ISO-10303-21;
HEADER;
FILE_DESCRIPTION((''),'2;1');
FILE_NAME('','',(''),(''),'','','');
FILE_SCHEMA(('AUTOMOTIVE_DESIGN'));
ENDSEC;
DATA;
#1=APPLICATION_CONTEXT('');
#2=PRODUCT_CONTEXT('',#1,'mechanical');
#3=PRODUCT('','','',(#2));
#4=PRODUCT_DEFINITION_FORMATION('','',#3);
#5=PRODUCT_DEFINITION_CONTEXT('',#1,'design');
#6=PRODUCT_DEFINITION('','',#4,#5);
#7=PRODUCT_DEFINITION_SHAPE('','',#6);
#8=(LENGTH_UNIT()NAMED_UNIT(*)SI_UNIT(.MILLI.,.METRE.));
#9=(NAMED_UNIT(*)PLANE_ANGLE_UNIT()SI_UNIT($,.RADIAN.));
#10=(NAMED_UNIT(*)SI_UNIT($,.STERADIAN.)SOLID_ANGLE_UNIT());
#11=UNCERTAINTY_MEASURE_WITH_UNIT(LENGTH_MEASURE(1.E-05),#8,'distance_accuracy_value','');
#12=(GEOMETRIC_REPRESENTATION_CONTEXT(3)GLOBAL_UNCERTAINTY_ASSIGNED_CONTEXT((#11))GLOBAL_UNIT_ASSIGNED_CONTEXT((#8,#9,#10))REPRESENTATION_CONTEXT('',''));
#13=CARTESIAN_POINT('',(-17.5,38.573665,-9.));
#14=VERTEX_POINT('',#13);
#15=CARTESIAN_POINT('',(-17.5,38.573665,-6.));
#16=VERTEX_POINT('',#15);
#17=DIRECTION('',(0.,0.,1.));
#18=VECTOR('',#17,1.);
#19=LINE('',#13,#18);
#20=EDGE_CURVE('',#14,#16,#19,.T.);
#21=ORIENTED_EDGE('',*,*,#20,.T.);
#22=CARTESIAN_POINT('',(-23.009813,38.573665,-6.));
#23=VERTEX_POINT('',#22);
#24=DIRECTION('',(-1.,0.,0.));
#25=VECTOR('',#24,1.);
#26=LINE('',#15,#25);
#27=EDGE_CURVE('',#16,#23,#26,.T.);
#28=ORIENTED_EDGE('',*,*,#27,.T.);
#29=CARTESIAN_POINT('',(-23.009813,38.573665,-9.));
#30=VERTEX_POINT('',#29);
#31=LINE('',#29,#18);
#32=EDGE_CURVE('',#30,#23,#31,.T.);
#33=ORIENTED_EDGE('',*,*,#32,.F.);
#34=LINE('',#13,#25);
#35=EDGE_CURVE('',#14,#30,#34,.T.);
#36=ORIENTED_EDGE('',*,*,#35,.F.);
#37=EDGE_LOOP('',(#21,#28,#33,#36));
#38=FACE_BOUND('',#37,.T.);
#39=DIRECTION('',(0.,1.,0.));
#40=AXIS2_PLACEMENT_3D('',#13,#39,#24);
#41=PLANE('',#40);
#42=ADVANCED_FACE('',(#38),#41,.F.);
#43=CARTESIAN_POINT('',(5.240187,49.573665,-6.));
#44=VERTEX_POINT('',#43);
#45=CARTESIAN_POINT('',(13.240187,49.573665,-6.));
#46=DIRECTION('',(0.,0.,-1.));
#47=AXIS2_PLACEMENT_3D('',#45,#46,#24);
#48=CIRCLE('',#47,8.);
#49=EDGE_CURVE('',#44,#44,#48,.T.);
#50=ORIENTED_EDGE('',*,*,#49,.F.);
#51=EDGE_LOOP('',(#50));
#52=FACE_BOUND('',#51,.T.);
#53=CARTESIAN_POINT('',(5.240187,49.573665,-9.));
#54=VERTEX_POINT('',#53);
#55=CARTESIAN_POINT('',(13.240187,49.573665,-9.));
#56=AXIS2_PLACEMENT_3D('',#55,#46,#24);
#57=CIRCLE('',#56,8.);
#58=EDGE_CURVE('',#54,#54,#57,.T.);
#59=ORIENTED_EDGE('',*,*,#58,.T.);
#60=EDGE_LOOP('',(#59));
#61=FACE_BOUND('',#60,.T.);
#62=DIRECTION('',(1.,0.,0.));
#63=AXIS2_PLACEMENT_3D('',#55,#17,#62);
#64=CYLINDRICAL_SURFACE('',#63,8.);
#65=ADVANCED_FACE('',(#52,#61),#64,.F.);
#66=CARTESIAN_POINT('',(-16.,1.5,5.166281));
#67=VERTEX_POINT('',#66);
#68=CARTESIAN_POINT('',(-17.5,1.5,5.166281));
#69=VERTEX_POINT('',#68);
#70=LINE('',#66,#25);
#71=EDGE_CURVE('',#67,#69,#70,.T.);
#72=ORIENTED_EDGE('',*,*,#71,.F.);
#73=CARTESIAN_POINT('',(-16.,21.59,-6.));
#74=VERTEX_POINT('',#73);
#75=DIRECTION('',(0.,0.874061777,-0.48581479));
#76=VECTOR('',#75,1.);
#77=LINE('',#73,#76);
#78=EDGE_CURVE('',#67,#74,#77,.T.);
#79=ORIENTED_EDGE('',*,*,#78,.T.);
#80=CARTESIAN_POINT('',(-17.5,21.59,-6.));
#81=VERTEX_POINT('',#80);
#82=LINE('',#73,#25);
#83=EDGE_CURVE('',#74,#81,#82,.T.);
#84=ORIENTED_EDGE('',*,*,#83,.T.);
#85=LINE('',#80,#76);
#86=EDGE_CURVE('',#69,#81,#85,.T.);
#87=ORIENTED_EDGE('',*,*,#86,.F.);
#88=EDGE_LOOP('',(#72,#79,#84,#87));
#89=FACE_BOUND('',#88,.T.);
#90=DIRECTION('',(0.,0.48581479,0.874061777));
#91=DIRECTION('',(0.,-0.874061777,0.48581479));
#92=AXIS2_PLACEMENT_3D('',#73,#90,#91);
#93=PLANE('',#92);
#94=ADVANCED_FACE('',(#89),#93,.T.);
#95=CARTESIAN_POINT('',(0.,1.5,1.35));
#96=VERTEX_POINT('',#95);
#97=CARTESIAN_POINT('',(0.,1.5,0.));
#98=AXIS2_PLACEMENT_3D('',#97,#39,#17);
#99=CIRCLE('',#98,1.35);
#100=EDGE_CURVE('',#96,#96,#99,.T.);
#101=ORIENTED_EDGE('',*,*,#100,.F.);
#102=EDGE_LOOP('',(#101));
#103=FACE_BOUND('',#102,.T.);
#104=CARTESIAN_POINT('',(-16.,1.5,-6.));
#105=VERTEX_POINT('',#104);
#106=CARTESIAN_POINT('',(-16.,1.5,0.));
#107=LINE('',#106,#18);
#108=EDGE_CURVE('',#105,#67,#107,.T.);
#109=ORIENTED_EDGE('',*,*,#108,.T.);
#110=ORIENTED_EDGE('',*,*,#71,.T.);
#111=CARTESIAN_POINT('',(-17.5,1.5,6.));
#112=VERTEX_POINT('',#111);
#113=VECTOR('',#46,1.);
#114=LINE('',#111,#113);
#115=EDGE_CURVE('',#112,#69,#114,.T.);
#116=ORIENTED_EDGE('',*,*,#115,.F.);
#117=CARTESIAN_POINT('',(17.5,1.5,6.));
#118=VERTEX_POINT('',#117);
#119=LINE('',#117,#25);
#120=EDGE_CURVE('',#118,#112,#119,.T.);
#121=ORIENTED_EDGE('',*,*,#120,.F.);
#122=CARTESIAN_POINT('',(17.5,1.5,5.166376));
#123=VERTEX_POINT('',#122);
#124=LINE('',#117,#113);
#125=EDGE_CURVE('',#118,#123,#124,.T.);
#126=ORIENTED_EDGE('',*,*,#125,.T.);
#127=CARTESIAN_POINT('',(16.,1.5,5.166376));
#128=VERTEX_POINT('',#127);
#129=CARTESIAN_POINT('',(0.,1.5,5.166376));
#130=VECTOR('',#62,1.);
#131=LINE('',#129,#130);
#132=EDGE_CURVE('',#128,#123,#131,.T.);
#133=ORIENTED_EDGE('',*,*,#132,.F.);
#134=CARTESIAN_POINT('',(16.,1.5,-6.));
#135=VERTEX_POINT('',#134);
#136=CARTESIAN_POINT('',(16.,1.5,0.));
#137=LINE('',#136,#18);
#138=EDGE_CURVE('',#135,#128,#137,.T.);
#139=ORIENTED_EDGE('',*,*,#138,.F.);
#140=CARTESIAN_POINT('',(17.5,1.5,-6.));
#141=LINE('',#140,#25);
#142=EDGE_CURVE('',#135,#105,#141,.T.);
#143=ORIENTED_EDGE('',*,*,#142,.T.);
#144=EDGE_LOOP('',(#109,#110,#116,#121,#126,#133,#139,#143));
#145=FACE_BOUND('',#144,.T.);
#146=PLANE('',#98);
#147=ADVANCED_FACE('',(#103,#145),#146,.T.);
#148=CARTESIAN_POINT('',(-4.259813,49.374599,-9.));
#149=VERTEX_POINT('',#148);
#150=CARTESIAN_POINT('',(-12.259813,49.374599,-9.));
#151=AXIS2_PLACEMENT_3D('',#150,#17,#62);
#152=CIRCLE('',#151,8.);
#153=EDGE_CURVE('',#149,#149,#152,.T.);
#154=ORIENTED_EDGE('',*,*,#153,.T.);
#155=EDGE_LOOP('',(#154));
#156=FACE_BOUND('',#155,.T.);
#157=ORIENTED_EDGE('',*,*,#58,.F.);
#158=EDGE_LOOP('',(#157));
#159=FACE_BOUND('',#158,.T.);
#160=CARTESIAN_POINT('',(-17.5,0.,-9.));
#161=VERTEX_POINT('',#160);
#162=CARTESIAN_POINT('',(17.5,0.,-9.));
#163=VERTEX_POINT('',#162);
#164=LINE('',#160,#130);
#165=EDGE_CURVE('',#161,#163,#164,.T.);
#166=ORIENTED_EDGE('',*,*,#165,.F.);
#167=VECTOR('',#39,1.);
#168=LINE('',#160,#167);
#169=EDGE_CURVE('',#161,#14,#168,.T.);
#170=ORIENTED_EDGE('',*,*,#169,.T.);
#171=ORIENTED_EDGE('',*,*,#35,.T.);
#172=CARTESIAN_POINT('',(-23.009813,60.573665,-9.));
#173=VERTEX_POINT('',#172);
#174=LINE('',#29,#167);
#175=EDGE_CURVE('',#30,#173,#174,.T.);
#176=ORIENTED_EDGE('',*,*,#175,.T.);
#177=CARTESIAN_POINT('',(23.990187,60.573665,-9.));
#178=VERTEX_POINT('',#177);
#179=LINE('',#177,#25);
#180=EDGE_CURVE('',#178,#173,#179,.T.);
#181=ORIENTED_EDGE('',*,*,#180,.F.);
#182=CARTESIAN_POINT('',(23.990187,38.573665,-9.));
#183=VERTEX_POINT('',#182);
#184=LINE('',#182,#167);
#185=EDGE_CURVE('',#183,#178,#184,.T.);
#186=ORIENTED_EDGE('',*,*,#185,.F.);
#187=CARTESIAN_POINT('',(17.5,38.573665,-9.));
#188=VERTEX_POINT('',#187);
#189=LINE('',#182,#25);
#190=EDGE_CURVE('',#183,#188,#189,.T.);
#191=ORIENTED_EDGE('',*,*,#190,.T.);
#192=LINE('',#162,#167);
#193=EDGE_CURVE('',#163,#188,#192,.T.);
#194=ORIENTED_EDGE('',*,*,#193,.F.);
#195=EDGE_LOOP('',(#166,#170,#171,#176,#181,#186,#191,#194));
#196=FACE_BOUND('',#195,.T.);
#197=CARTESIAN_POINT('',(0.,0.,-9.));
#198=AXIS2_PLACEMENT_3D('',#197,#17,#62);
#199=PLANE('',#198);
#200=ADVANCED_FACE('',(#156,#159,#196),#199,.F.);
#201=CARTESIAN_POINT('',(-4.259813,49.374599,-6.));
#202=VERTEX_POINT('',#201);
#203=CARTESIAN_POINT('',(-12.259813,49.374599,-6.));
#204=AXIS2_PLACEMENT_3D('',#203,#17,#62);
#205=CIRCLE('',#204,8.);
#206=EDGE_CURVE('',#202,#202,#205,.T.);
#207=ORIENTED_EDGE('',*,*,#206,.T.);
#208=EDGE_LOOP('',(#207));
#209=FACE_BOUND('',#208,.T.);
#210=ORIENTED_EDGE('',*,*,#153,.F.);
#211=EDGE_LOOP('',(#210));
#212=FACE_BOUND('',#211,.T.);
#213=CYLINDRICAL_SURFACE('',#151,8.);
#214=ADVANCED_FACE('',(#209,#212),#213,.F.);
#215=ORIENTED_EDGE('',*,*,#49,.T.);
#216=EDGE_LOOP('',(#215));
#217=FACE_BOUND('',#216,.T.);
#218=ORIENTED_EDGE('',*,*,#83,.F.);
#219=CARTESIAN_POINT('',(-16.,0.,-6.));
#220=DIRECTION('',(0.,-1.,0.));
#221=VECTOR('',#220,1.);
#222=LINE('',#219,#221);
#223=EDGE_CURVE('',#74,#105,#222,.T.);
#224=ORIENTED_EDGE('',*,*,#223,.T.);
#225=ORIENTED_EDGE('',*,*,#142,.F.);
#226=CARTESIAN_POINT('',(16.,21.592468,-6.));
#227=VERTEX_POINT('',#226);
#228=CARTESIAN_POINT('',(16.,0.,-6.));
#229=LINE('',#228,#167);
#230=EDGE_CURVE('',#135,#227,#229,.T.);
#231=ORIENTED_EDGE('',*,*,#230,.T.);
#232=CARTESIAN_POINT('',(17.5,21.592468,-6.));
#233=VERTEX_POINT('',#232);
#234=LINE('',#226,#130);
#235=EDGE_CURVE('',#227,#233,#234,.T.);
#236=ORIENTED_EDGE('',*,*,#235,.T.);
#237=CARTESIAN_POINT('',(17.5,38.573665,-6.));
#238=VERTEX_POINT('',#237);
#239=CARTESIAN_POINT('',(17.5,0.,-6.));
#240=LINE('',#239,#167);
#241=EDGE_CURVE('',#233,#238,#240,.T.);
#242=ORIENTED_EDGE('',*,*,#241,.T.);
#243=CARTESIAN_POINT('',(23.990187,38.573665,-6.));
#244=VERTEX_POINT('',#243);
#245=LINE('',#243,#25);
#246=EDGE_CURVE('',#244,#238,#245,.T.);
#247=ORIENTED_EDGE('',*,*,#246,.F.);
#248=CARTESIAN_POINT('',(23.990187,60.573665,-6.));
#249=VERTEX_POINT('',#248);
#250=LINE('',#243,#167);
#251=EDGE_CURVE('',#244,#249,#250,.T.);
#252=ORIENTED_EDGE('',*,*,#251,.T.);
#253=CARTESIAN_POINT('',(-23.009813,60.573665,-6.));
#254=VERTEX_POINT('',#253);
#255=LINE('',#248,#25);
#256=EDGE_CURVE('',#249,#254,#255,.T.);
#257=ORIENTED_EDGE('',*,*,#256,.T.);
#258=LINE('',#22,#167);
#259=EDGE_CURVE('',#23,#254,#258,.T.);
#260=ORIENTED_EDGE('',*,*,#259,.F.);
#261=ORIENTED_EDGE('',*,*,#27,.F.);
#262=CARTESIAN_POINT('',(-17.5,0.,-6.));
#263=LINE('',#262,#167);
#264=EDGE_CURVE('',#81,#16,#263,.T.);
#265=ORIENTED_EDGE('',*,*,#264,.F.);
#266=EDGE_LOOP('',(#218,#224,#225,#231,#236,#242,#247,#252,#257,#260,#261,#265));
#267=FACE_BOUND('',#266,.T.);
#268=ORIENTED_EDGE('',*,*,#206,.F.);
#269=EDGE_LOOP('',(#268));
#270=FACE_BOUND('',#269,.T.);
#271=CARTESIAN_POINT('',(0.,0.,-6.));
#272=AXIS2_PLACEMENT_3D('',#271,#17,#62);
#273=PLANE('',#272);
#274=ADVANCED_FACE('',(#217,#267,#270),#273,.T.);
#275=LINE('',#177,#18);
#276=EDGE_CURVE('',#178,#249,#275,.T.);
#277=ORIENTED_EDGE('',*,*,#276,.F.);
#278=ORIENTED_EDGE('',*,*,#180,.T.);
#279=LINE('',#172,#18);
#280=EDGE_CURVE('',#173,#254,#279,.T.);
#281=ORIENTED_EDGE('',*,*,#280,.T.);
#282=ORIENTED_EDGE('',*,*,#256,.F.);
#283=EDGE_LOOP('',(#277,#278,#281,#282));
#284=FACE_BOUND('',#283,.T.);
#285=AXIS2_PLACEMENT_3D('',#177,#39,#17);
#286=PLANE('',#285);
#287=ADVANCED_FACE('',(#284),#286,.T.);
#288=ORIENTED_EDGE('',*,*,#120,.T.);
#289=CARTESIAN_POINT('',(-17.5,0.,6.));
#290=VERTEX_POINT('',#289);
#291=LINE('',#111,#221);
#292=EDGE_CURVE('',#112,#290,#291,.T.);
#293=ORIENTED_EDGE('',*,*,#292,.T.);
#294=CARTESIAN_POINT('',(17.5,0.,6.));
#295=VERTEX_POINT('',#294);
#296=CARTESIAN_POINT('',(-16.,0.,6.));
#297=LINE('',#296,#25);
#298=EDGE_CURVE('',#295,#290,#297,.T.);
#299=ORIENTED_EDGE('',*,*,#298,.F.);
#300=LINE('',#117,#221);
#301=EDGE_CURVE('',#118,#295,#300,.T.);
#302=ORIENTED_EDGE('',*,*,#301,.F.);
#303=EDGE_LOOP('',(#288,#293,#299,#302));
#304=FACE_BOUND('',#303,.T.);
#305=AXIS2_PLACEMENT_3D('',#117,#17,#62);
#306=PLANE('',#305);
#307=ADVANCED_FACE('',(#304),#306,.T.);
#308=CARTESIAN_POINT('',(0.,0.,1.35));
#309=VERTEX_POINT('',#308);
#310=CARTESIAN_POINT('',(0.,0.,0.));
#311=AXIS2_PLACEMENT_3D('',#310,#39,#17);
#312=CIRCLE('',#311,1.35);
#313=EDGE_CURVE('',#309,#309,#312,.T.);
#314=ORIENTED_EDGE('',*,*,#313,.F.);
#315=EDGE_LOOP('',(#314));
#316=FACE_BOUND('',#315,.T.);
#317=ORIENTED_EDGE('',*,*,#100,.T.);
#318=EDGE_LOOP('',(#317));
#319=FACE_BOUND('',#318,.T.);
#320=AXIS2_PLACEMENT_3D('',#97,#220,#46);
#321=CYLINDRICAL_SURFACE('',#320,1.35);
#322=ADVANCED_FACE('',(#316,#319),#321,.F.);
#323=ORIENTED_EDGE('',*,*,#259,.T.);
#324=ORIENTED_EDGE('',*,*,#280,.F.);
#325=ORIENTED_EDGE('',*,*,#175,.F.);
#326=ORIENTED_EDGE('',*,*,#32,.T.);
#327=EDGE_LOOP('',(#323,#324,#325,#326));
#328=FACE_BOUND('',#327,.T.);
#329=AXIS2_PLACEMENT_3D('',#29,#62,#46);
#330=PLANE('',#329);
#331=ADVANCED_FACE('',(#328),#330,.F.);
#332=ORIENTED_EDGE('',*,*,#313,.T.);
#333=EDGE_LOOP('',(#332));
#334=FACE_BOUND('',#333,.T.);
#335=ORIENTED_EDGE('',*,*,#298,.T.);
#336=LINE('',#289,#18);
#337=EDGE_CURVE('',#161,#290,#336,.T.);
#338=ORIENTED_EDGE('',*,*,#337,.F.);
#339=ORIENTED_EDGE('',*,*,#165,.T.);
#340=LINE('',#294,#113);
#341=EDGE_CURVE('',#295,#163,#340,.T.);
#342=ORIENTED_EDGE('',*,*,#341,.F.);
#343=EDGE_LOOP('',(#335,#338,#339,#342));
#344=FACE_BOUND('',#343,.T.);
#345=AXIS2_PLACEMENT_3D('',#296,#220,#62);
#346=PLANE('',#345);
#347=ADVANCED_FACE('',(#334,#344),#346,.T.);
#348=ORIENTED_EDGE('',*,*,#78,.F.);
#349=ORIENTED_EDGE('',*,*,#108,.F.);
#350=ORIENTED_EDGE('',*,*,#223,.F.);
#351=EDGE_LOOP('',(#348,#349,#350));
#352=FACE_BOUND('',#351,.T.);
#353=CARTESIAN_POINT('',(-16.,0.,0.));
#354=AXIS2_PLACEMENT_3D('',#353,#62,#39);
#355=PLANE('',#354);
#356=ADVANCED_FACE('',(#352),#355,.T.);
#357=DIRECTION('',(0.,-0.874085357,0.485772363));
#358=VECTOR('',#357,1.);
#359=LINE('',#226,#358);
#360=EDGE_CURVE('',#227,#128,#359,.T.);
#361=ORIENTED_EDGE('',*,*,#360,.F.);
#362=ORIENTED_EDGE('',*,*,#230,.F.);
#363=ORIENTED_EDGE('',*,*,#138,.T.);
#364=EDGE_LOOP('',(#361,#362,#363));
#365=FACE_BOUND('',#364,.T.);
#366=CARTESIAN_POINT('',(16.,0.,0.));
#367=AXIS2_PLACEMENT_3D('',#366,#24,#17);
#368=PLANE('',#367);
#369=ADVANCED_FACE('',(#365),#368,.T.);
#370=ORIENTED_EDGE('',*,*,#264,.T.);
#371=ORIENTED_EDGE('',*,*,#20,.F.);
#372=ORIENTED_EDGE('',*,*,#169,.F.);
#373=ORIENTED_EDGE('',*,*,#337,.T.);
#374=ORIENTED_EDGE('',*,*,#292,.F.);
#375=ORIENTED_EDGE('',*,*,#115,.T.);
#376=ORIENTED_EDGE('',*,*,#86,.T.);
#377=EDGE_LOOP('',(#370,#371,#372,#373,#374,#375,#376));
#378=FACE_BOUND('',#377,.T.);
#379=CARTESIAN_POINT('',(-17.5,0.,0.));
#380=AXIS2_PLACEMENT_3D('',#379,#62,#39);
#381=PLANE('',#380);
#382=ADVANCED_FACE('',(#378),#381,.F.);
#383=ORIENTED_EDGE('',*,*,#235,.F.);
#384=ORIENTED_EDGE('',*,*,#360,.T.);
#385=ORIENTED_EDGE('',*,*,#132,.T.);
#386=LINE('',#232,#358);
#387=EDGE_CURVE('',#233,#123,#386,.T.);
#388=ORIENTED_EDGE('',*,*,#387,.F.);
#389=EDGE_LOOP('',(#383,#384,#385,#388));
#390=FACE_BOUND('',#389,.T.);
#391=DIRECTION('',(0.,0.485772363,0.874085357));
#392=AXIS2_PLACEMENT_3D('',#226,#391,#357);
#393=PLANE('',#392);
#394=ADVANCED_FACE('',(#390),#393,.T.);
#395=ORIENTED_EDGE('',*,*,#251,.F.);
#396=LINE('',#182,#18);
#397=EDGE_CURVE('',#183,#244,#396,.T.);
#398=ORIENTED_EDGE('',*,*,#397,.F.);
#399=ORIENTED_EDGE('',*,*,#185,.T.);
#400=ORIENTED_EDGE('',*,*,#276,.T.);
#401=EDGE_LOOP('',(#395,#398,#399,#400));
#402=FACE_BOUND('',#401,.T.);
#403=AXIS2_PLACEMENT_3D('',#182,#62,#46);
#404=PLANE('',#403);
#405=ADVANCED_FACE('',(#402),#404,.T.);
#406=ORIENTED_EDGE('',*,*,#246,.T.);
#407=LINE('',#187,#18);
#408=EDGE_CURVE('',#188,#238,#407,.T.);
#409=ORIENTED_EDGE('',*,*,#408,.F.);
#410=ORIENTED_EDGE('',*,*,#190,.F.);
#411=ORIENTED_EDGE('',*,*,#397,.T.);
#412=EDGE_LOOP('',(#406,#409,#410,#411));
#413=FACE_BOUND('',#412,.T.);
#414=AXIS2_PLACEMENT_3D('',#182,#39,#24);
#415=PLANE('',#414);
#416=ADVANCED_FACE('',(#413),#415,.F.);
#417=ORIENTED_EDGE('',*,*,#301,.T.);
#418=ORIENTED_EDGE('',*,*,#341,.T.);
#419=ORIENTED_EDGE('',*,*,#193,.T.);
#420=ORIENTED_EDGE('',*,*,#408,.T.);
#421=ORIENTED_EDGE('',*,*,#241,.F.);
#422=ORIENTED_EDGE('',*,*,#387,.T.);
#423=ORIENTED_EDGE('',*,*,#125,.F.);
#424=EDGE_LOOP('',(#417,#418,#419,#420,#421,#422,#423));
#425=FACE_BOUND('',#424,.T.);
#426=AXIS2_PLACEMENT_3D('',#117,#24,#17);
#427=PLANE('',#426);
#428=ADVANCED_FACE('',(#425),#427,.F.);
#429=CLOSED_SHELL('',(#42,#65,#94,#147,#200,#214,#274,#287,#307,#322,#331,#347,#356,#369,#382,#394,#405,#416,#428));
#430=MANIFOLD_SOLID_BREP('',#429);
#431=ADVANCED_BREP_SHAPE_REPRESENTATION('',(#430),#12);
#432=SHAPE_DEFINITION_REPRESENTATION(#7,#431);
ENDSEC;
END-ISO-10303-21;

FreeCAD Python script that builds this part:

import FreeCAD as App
import Part
import Sketcher
from FreeCAD import Vector

doc = App.newDocument("Part")
body = doc.addObject("PartDesign::Body", "Body")

sketch1 = body.newObject("Sketcher::SketchObject", "Sketch")
sketch1.AttachmentSupport = (doc.getObject("YZ_Plane"), [""])
sketch1.MapMode = "FlatFace"
sketch1.AttachmentOffset = App.Placement(Vector(0, 0, -17.5), App.Rotation())
sketch1.addGeometry([
    Part.LineSegment(Vector(0, 6, 0), Vector(22, -6, 0)),
    Part.LineSegment(Vector(22, -6, 0), Vector(0, -6, 0)),
    Part.LineSegment(Vector(0, -6, 0), Vector(0, 6, 0)),
], False)
sketch1.addConstraint([
    Sketcher.Constraint("Coincident", 0, 2, 1, 1),
    Sketcher.Constraint("Coincident", 1, 2, 2, 1),
    Sketcher.Constraint("Coincident", 2, 2, 0, 1),
    Sketcher.Constraint("Horizontal", 1),
    Sketcher.Constraint("Vertical", 2),
    Sketcher.Constraint("Symmetric", 1, 2, 2, 2, -1, 1),
    Sketcher.Constraint("DistanceY", 2, 1, 2, 2, 12.0),
    Sketcher.Constraint("DistanceX", 1, 2, 1, 1, 21.59),
])
pad1 = body.newObject("PartDesign::Pad", "Pad")
pad1.Profile = sketch1
pad1.Length = 1.5
body2 = doc.addObject("PartDesign::Body", "Body001")

sketch2 = body2.newObject("Sketcher::SketchObject", "Sketch001")
sketch2.AttachmentSupport = (doc.getObject("YZ_Plane001"), [""])
sketch2.MapMode = "FlatFace"
sketch2.AttachmentOffset = App.Placement(Vector(0, 0, 17.5), App.Rotation())
sketch2.addGeometry([
    Part.LineSegment(Vector(22, -6, 0), Vector(0, 6, 0)),
    Part.LineSegment(Vector(0, 6, 0), Vector(0, -6, 0)),
    Part.LineSegment(Vector(0, -6, 0), Vector(22, -6, 0)),
], False)
sketch2.addConstraint([
    Sketcher.Constraint("Coincident", 0, 2, 1, 1),
    Sketcher.Constraint("Coincident", 1, 2, 2, 1),
    Sketcher.Constraint("Coincident", 2, 2, 0, 1),
    Sketcher.Constraint("Vertical", 1),
    Sketcher.Constraint("Horizontal", 2),
    Sketcher.Constraint("Symmetric", 0, 2, 1, 2, -1, 1),
    Sketcher.Constraint("DistanceY", 1, 2, 1, 1, 12.0),
    Sketcher.Constraint("DistanceX", 2, 1, 2, 2, 21.592468),
])
pad2 = body2.newObject("PartDesign::Pad", "Pad001")
pad2.Profile = sketch2
pad2.Length = 1.5
pad2.Reversed = True
body.AllowCompound = True
doc.recompute()

boolean = body.newObject("PartDesign::Boolean", "Boolean")
boolean.Type = "Fuse"
boolean.addObjects([body2])

sketch3 = body.newObject("Sketcher::SketchObject", "Sketch002")
sketch3.AttachmentSupport = (doc.getObject("XZ_Plane"), [""])
sketch3.MapMode = "FlatFace"
sketch3.addGeometry([
    Part.LineSegment(Vector(-17.5, -6, 0), Vector(-17.5, 6, 0)),
    Part.LineSegment(Vector(-17.5, 6, 0), Vector(17.5, 6, 0)),
    Part.LineSegment(Vector(17.5, 6, 0), Vector(17.5, -6, 0)),
    Part.LineSegment(Vector(17.5, -6, 0), Vector(-17.5, -6, 0)),
    Part.Circle(Vector(0, 0, 0), Vector(0, 0, 1), 1.4),
], False)
sketch3.addConstraint([
    Sketcher.Constraint("Coincident", 0, 2, 1, 1),
    Sketcher.Constraint("Coincident", 1, 2, 2, 1),
    Sketcher.Constraint("Coincident", 2, 2, 3, 1),
    Sketcher.Constraint("Coincident", 3, 2, 0, 1),
    Sketcher.Constraint("Vertical", 0),
    Sketcher.Constraint("Horizontal", 1),
    Sketcher.Constraint("Vertical", 2),
    Sketcher.Constraint("Horizontal", 3),
    Sketcher.Constraint("Coincident", 4, 3, -1, 1),
    Sketcher.Constraint("Symmetric", 0, 2, 2, 2, -1, 1),
    Sketcher.Constraint("Diameter", 4, 2.7),
    Sketcher.Constraint("DistanceX", 1, 1, 1, 2, 35.0),
    Sketcher.Constraint("DistanceY", 0, 1, 0, 2, 12.0),
])
pad3 = body.newObject("PartDesign::Pad", "Pad002")
pad3.Profile = sketch3
pad3.Length = 1.5
pad3.Reversed = True

sketch4 = body.newObject("Sketcher::SketchObject", "Sketch003")
sketch4.AttachmentSupport = (doc.getObject("XY_Plane"), [""])
sketch4.MapMode = "FlatFace"
sketch4.AttachmentOffset = App.Placement(Vector(0, 0, -6), App.Rotation())
sketch4.addGeometry([
    Part.LineSegment(Vector(18, 0, 0), Vector(-18, 0, 0)),
    Part.LineSegment(Vector(-18, 0, 0), Vector(-18, 39, 0)),
    Part.LineSegment(Vector(-18, 39, 0), Vector(-23, 39, 0)),
    Part.LineSegment(Vector(-23, 39, 0), Vector(-23, 61, 0)),
    Part.LineSegment(Vector(-23, 61, 0), Vector(24, 61, 0)),
    Part.LineSegment(Vector(24, 61, 0), Vector(24, 39, 0)),
    Part.LineSegment(Vector(24, 39, 0), Vector(18, 39, 0)),
    Part.LineSegment(Vector(18, 39, 0), Vector(18, 0, 0)),
    Part.Circle(Vector(-12, 49, 0), Vector(0, 0, 1), 8),
    Part.Circle(Vector(13, 50, 0), Vector(0, 0, 1), 8),
], False)
sketch4.addConstraint([
    Sketcher.Constraint("Coincident", 0, 2, 1, 1),
    Sketcher.Constraint("Coincident", 1, 2, 2, 1),
    Sketcher.Constraint("Coincident", 2, 2, 3, 1),
    Sketcher.Constraint("Coincident", 3, 2, 4, 1),
    Sketcher.Constraint("Coincident", 4, 2, 5, 1),
    Sketcher.Constraint("Coincident", 5, 2, 6, 1),
    Sketcher.Constraint("Coincident", 6, 2, 7, 1),
    Sketcher.Constraint("Coincident", 7, 2, 0, 1),
    Sketcher.Constraint("Horizontal", 0),
    Sketcher.Constraint("Vertical", 1),
    Sketcher.Constraint("Horizontal", 2),
    Sketcher.Constraint("Vertical", 3),
    Sketcher.Constraint("Horizontal", 4),
    Sketcher.Constraint("Vertical", 5),
    Sketcher.Constraint("Horizontal", 6),
    Sketcher.Constraint("Vertical", 7),
    Sketcher.Constraint("Equal", 8, 9),
    Sketcher.Constraint("Symmetric", 0, 2, 7, 2, -1, 1),
    Sketcher.Constraint("Horizontal", 2, 2, 5, 2),
    Sketcher.Constraint("Diameter", 8, 16.0),
    Sketcher.Constraint("DistanceX", 0, 2, 0, 1, 35.0),
    Sketcher.Constraint("DistanceX", 4, 1, 4, 2, 47.0),
    Sketcher.Constraint("DistanceY", 3, 1, 3, 2, 22.0),
    Sketcher.Constraint("DistanceY", 1, 2, 9, 3, 11.0),
    Sketcher.Constraint("DistanceX", 8, 3, 9, 3, 25.5),
    Sketcher.Constraint("DistanceX", 2, 2, 8, 3, 10.75),
    Sketcher.Constraint("DistanceY", -1, 1, 8, 3, 49.374599),
    Sketcher.Constraint("DistanceX", 2, 2, 2, 1, 5.509813),
    Sketcher.Constraint("DistanceY", 1, 1, 1, 2, 38.573665),
])
pad4 = body.newObject("PartDesign::Pad", "Pad003")
pad4.Profile = sketch4
pad4.Length = 3
pad4.Reversed = True

doc.recompute()
